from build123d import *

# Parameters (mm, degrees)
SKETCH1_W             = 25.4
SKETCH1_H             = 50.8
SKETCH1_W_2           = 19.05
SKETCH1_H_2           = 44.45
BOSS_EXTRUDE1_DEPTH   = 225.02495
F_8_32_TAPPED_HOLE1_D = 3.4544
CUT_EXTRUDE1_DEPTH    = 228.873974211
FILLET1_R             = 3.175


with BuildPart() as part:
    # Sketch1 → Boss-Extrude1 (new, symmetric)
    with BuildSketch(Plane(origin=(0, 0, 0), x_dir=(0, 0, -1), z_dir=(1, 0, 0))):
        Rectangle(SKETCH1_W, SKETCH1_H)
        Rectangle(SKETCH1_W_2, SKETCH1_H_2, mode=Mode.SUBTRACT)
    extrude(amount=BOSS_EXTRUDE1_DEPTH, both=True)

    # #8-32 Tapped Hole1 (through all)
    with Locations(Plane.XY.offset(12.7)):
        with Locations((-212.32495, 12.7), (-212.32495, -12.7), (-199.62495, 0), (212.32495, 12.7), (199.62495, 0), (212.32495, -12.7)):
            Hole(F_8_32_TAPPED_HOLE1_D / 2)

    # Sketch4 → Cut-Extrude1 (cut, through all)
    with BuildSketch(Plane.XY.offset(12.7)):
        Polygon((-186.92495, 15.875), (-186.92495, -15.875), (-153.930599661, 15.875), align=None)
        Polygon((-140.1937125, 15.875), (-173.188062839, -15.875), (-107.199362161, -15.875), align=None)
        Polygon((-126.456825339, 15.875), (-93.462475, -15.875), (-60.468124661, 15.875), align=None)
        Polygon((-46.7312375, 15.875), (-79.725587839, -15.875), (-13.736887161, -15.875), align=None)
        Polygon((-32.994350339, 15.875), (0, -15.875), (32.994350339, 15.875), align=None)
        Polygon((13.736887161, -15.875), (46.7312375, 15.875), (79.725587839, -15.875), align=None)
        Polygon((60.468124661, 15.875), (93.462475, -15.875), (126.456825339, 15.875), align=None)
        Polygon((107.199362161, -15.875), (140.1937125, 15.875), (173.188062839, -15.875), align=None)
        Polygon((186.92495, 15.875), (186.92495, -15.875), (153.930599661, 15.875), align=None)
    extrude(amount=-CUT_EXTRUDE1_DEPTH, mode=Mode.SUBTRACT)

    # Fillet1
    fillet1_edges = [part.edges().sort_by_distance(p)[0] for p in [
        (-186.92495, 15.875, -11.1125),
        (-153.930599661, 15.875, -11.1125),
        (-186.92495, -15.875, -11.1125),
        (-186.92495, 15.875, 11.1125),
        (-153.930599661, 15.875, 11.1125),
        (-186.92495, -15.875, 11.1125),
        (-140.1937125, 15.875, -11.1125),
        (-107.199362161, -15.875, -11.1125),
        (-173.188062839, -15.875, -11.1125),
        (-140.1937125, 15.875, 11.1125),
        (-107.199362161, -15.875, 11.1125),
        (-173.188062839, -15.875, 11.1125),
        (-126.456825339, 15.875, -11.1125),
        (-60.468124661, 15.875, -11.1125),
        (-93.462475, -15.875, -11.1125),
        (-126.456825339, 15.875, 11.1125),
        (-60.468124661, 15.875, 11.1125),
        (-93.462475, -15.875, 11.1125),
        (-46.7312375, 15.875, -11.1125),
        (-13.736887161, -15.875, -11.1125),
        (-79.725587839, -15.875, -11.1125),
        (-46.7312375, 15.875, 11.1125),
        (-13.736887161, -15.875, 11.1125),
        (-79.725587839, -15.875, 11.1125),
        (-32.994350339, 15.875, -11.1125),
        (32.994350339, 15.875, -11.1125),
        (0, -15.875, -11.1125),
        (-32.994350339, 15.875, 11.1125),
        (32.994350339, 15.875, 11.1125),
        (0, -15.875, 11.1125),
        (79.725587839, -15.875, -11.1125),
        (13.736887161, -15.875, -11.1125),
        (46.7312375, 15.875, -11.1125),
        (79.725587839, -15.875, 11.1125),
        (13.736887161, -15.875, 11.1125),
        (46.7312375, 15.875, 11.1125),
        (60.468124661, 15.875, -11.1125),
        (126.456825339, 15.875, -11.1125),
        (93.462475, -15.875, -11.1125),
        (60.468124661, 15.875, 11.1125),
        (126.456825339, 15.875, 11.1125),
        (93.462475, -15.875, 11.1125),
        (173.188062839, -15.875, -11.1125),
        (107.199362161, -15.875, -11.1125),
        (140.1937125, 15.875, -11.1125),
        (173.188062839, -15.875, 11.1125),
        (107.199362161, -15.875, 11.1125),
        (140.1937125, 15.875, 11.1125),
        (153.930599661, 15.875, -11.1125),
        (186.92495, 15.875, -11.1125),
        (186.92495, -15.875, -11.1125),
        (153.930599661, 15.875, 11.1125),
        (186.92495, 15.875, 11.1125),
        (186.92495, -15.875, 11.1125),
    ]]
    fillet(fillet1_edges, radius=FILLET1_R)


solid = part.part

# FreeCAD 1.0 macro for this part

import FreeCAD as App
import Part
import Sketcher

V = App.Vector
Q = App.Units.Quantity


def edges_at(feature, points):
    """Names of the edges that pass closest to the given points."""
    edges = feature.Shape.Edges
    near = lambda p: min(range(len(edges)), key=lambda i: edges[i].distToShape(Part.Vertex(*p))[0])
    return sorted({f"Edge{near(p) + 1}" for p in points})


def add_polygon(sketch, points):
    """Adds a closed chain of lines whose ends are joined by coincident constraints."""
    first, n = sketch.GeometryCount, len(points)
    for a, b in zip(points, points[1:] + points[:1]):
        sketch.addGeometry(Part.LineSegment(App.Vector(*a, 0), App.Vector(*b, 0)), False)
    for i in range(n):
        sketch.addConstraint(Sketcher.Constraint("Coincident", first + i, 2, first + (i + 1) % n, 1))

doc = App.newDocument("Part")
body = doc.addObject("PartDesign::Body", "Body")

# Sketch on YZ plane
sketch1 = doc.addObject("Sketcher::SketchObject", "Sketch")
body.addObject(sketch1)
sketch1.AttachmentSupport = (doc.YZ_Plane, [""])
sketch1.MapMode = "FlatFace"
add_polygon(sketch1, [(25, 13), (-25, 13), (-25, -13), (25, -13)])  # lines 0-3
add_polygon(sketch1, [(-22, -10), (-22, 10), (22, 10), (22, -10)])  # lines 4-7
sketch1.addConstraint(Sketcher.Constraint("Horizontal", 0))
sketch1.addConstraint(Sketcher.Constraint("Vertical", 1))
sketch1.addConstraint(Sketcher.Constraint("Horizontal", 2))
sketch1.addConstraint(Sketcher.Constraint("Vertical", 3))
sketch1.addConstraint(Sketcher.Constraint("Vertical", 4))
sketch1.addConstraint(Sketcher.Constraint("Horizontal", 5))
sketch1.addConstraint(Sketcher.Constraint("Vertical", 6))
sketch1.addConstraint(Sketcher.Constraint("Horizontal", 7))
sketch1.addConstraint(Sketcher.Constraint("Symmetric", 0, 2, 2, 2, -1, 1))
sketch1.addConstraint(Sketcher.Constraint("Symmetric", 4, 2, 6, 2, -1, 1))
sketch1.addConstraint(Sketcher.Constraint("DistanceX", 0, 2, 0, 1, Q("2 in")))
sketch1.addConstraint(Sketcher.Constraint("DistanceY", 1, 2, 1, 1, Q("1 in")))
sketch1.addConstraint(Sketcher.Constraint("DistanceX", 5, 1, 5, 2, Q("1.75 in")))
sketch1.addConstraint(Sketcher.Constraint("DistanceY", 4, 1, 4, 2, Q("0.75 in")))
pad1 = doc.addObject("PartDesign::Pad", "Pad")
body.addObject(pad1)
pad1.Profile = sketch1
pad1.Length = Q("17.7185 in")
pad1.Midplane = True

# Sketch on XY plane
sketch2 = doc.addObject("Sketcher::SketchObject", "Sketch001")
body.addObject(sketch2)
sketch2.AttachmentSupport = (doc.XY_Plane, [""])
sketch2.MapMode = "FlatFace"
sketch2.AttachmentOffset = App.Placement(V(0, 0, 0.5 * 25.4), App.Rotation())
sketch2.addGeometry(Part.Circle(V(-212.3, 12.7, 0), V(0, 0, 1), 1.7), False)
sketch2.addGeometry(Part.Circle(V(-212.3, -12.7, 0), V(0, 0, 1), 1.7), False)
sketch2.addGeometry(Part.Circle(V(-199.6, 0, 0), V(0, 0, 1), 1.7), False)
sketch2.addGeometry(Part.Circle(V(212.3, 12.7, 0), V(0, 0, 1), 1.7), False)
sketch2.addGeometry(Part.Circle(V(199.6, 0, 0), V(0, 0, 1), 1.7), False)
sketch2.addGeometry(Part.Circle(V(212.3, -12.7, 0), V(0, 0, 1), 1.7), False)
sketch2.addConstraint(Sketcher.Constraint("Equal", 0, 1))
sketch2.addConstraint(Sketcher.Constraint("Equal", 1, 2))
sketch2.addConstraint(Sketcher.Constraint("Equal", 2, 3))
sketch2.addConstraint(Sketcher.Constraint("Equal", 3, 4))
sketch2.addConstraint(Sketcher.Constraint("Equal", 4, 5))
sketch2.addConstraint(Sketcher.Constraint("Symmetric", 1, 3, 3, 3, -1, 1))
sketch2.addConstraint(Sketcher.Constraint("Symmetric", 2, 3, 4, 3, -1, 1))
sketch2.addConstraint(Sketcher.Constraint("Symmetric", 0, 3, 5, 3, -1, 1))
sketch2.addConstraint(Sketcher.Constraint("Symmetric", 0, 3, 3, 3, -2))
sketch2.addConstraint(Sketcher.Constraint("PointOnObject", 2, 3, -1))
sketch2.addConstraint(Sketcher.Constraint("Diameter", 0, Q("0.136 in")))
sketch2.addConstraint(Sketcher.Constraint("DistanceY", 1, 3, 0, 3, Q("1 in")))
sketch2.addConstraint(Sketcher.Constraint("DistanceX", 0, 3, 2, 3, Q("0.5 in")))
sketch2.addConstraint(Sketcher.Constraint("DistanceX", 2, 3, 3, 3, Q("16.2185 in")))
doc.recompute()
hole = doc.addObject("PartDesign::Hole", "Hole")
body.addObject(hole)
hole.Profile = sketch2
hole.ThreadType = "None"
hole.Diameter = Q("0.136 in")
hole.DepthType = "ThroughAll"

# Sketch on XY plane
sketch3 = doc.addObject("Sketcher::SketchObject", "Sketch002")
body.addObject(sketch3)
sketch3.AttachmentSupport = (doc.XY_Plane, [""])
sketch3.MapMode = "FlatFace"
sketch3.AttachmentOffset = App.Placement(V(0, 0, 0.5 * 25.4), App.Rotation())
add_polygon(sketch3, [(-187, 16), (-187, -16), (-154, 16)])  # lines 0-2
add_polygon(sketch3, [(-140, 16), (-173, -16), (-107, -16)])  # lines 3-5
add_polygon(sketch3, [(-126, 16), (-93, -16), (-60, 16)])  # lines 6-8
add_polygon(sketch3, [(-47, 16), (-80, -16), (-14, -16)])  # lines 9-11
add_polygon(sketch3, [(-33, 16), (0, -16), (33, 16)])  # lines 12-14
add_polygon(sketch3, [(47, 16), (14, -16), (80, -16)])  # lines 15-17
add_polygon(sketch3, [(60, 16), (93, -16), (126, 16)])  # lines 18-20
add_polygon(sketch3, [(140, 16), (107, -16), (173, -16)])  # lines 21-23
add_polygon(sketch3, [(187, -16), (187, 16), (154, 16)])  # lines 24-26
sketch3.addConstraint(Sketcher.Constraint("Vertical", 0))
sketch3.addConstraint(Sketcher.Constraint("Horizontal", 2))
sketch3.addConstraint(Sketcher.Constraint("Horizontal", 4))
sketch3.addConstraint(Sketcher.Constraint("Horizontal", 8))
sketch3.addConstraint(Sketcher.Constraint("Horizontal", 10))
sketch3.addConstraint(Sketcher.Constraint("Horizontal", 14))
sketch3.addConstraint(Sketcher.Constraint("Horizontal", 16))
sketch3.addConstraint(Sketcher.Constraint("Horizontal", 20))
sketch3.addConstraint(Sketcher.Constraint("Horizontal", 22))
sketch3.addConstraint(Sketcher.Constraint("Vertical", 24))
sketch3.addConstraint(Sketcher.Constraint("Horizontal", 25))
sketch3.addConstraint(Sketcher.Constraint("Symmetric", 0, 2, 24, 2, -1, 1))
sketch3.addConstraint(Sketcher.Constraint("Symmetric", 10, 2, 15, 2, -2))
sketch3.addConstraint(Sketcher.Constraint("Symmetric", 11, 2, 17, 2, -2))
sketch3.addConstraint(Sketcher.Constraint("Symmetric", 6, 2, 18, 2, -2))
sketch3.addConstraint(Sketcher.Constraint("Symmetric", 8, 2, 19, 2, -2))
sketch3.addConstraint(Sketcher.Constraint("Symmetric", 4, 2, 21, 2, -2))
sketch3.addConstraint(Sketcher.Constraint("Symmetric", 5, 2, 23, 2, -2))
sketch3.addConstraint(Sketcher.Constraint("Symmetric", 1, 2, 25, 2, -2))
sketch3.addConstraint(Sketcher.Constraint("PointOnObject", 12, 2, -2))
sketch3.addConstraint(Sketcher.Constraint("Parallel", 1, 3))
sketch3.addConstraint(Sketcher.Constraint("Parallel", 5, 6))
sketch3.addConstraint(Sketcher.Constraint("Parallel", 3, 7))
sketch3.addConstraint(Sketcher.Constraint("Parallel", 7, 9))
sketch3.addConstraint(Sketcher.Constraint("Parallel", 6, 11))
sketch3.addConstraint(Sketcher.Constraint("Parallel", 11, 12))
sketch3.addConstraint(Sketcher.Constraint("Parallel", 9, 13))
sketch3.addConstraint(Sketcher.Constraint("Parallel", 13, 15))
sketch3.addConstraint(Sketcher.Constraint("Parallel", 12, 17))
sketch3.addConstraint(Sketcher.Constraint("Parallel", 17, 18))
sketch3.addConstraint(Sketcher.Constraint("Parallel", 18, 23))
sketch3.addConstraint(Sketcher.Constraint("Parallel", 23, 26))
sketch3.addConstraint(Sketcher.Constraint("Horizontal", 0, 2, 3, 2))
sketch3.addConstraint(Sketcher.Constraint("Horizontal", 2, 2, 5, 2))
sketch3.addConstraint(Sketcher.Constraint("Horizontal", 4, 2, 6, 2))
sketch3.addConstraint(Sketcher.Constraint("Horizontal", 5, 2, 7, 2))
sketch3.addConstraint(Sketcher.Constraint("Horizontal", 6, 2, 9, 2))
sketch3.addConstraint(Sketcher.Constraint("Horizontal", 8, 2, 11, 2))
sketch3.addConstraint(Sketcher.Constraint("Horizontal", 10, 2, 12, 2))
sketch3.addConstraint(Sketcher.Constraint("Horizontal", 11, 2, 13, 2))
sketch3.addConstraint(Sketcher.Constraint("DistanceY", 0, 2, 0, 1, Q("1.25 in")))
sketch3.addConstraint(Sketcher.Constraint("DistanceX", 4, 1, 4, 2, 65.988701))
sketch3.addConstraint(Sketcher.Constraint("DistanceX", 1, 2, -1, 1, 153.9306))
sketch3.addConstraint(Sketcher.Constraint("DistanceX", 3, 2, 7, 2, 112.719938))
sketch3.addConstraint(Sketcher.Constraint("DistanceX", 8, 2, 10, 2, 112.719938))
sketch3.addConstraint(Sketcher.Constraint("DistanceX", 9, 2, 13, 2, 112.719938))
pocket1 = doc.addObject("PartDesign::Pocket", "Pocket")
body.addObject(pocket1)
pocket1.Profile = sketch3
pocket1.Type = "ThroughAll"
doc.recompute()

fillet = doc.addObject("PartDesign::Fillet", "Fillet")
body.addObject(fillet)
fillet.Base = (pocket1, edges_at(pocket1, [
    (-186.925, 15.875, -11.113),
    (-153.931, 15.875, -11.113),
    (-186.925, -15.875, -11.113),
    (-186.925, 15.875, 11.113),
    (-153.931, 15.875, 11.113),
    (-186.925, -15.875, 11.113),
    (-140.194, 15.875, -11.113),
    (-107.199, -15.875, -11.113),
    (-173.188, -15.875, -11.113),
    (-140.194, 15.875, 11.113),
    (-107.199, -15.875, 11.113),
    (-173.188, -15.875, 11.113),
    (-126.457, 15.875, -11.113),
    (-60.468, 15.875, -11.113),
    (-93.462, -15.875, -11.113),
    (-126.457, 15.875, 11.113),
    (-60.468, 15.875, 11.113),
    (-93.462, -15.875, 11.113),
    (-46.731, 15.875, -11.113),
    (-13.737, -15.875, -11.113),
    (-79.726, -15.875, -11.113),
    (-46.731, 15.875, 11.113),
    (-13.737, -15.875, 11.113),
    (-79.726, -15.875, 11.113),
    (-32.994, 15.875, -11.113),
    (32.994, 15.875, -11.113),
    (0, -15.875, -11.113),
    (-32.994, 15.875, 11.113),
    (32.994, 15.875, 11.113),
    (0, -15.875, 11.113),
    (79.726, -15.875, -11.113),
    (13.737, -15.875, -11.113),
    (46.731, 15.875, -11.113),
    (79.726, -15.875, 11.113),
    (13.737, -15.875, 11.113),
    (46.731, 15.875, 11.113),
    (60.468, 15.875, -11.113),
    (126.457, 15.875, -11.113),
    (93.462, -15.875, -11.113),
    (60.468, 15.875, 11.113),
    (126.457, 15.875, 11.113),
    (93.462, -15.875, 11.113),
    (173.188, -15.875, -11.113),
    (107.199, -15.875, -11.113),
    (140.194, 15.875, -11.113),
    (173.188, -15.875, 11.113),
    (107.199, -15.875, 11.113),
    (140.194, 15.875, 11.113),
    (153.931, 15.875, -11.113),
    (186.925, 15.875, -11.113),
    (186.925, -15.875, -11.113),
    (153.931, 15.875, 11.113),
    (186.925, 15.875, 11.113),
    (186.925, -15.875, 11.113),
]))
fillet.Radius = Q("0.125 in")

doc.recompute()
